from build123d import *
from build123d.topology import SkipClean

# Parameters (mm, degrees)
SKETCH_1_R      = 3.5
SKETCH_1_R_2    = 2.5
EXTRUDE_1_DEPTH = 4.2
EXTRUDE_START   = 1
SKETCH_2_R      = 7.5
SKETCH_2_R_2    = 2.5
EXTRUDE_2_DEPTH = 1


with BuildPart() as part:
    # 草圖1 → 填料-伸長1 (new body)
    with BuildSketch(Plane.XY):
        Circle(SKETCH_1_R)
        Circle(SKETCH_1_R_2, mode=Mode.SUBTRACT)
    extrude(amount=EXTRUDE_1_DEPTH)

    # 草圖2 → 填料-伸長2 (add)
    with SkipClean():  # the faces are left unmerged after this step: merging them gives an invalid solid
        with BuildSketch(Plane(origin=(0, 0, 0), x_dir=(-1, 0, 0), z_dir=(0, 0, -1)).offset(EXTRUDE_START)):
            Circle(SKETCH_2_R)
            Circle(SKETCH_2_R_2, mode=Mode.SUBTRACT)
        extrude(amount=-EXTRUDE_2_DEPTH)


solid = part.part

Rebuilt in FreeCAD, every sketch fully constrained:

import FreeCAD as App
import Part
import Sketcher
Q = App.Units.Quantity

doc = App.newDocument("Part")
body = doc.addObject("PartDesign::Body", "Body")

sketch1 = doc.addObject("Sketcher::SketchObject", "Sketch")
body.addObject(sketch1)
sketch1.AttachmentSupport = (doc.XY_Plane, [""])
sketch1.MapMode = "FlatFace"
sketch1.addGeometry(Part.Circle(App.Vector(0, 0, 0), App.Vector(0, 0, 1), 3.5), False)
sketch1.addGeometry(Part.Circle(App.Vector(0, 0, 0), App.Vector(0, 0, 1), 2.5), False)
sketch1.addConstraint(Sketcher.Constraint("Coincident", 0, 3, -1, 1))
sketch1.addConstraint(Sketcher.Constraint("Coincident", 1, 3, -1, 1))
sketch1.addConstraint(Sketcher.Constraint("Diameter", 0, Q("7 mm")))
sketch1.addConstraint(Sketcher.Constraint("Diameter", 1, Q("5 mm")))
pad1 = doc.addObject("PartDesign::Pad", "Pad")
body.addObject(pad1)
pad1.Profile = sketch1
pad1.Length = 4.2

sketch2 = doc.addObject("Sketcher::SketchObject", "Sketch001")
body.addObject(sketch2)
sketch2.AttachmentSupport = (doc.XY_Plane, [""])
sketch2.MapMode = "FlatFace"
sketch2.AttachmentOffset = App.Placement(App.Vector(0, 0, -1), App.Rotation())
sketch2.addGeometry(Part.Circle(App.Vector(0, 0, 0), App.Vector(0, 0, 1), 7.5), False)
sketch2.addGeometry(Part.Circle(App.Vector(0, 0, 0), App.Vector(0, 0, 1), 2.5), False)
sketch2.addConstraint(Sketcher.Constraint("Coincident", 0, 3, -1, 1))
sketch2.addConstraint(Sketcher.Constraint("Coincident", 1, 3, -1, 1))
sketch2.addConstraint(Sketcher.Constraint("Diameter", 0, Q("15 mm")))
sketch2.addConstraint(Sketcher.Constraint("Diameter", 1, Q("5 mm")))
pad2 = doc.addObject("PartDesign::Pad", "Pad001")
body.addObject(pad2)
pad2.Profile = sketch2
pad2.Length = 1

doc.recompute()
